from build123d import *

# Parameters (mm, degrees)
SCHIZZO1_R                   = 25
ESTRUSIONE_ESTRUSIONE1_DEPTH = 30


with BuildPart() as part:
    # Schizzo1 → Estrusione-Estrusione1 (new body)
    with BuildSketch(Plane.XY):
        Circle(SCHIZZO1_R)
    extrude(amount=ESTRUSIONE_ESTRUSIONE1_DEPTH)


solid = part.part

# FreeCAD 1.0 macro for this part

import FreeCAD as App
import Part
import Sketcher
from FreeCAD import Vector

doc = App.newDocument("Part")
body = doc.addObject("PartDesign::Body", "Body")

# Sketch on XY plane
sketch1 = body.newObject("Sketcher::SketchObject", "Sketch")
sketch1.AttachmentSupport = (doc.getObject("XY_Plane"), [""])
sketch1.MapMode = "FlatFace"
sketch1.addGeometry(Part.Circle(Vector(0, 0, 0), Vector(0, 0, 1), 25), False)
sketch1.addConstraint([
    Sketcher.Constraint("Coincident", 0, 3, -1, 1),
    Sketcher.Constraint("Diameter", 0, 50.0),
])
pad1 = body.newObject("PartDesign::Pad", "Pad")
pad1.Profile = sketch1
pad1.Length = 30

doc.recompute()
